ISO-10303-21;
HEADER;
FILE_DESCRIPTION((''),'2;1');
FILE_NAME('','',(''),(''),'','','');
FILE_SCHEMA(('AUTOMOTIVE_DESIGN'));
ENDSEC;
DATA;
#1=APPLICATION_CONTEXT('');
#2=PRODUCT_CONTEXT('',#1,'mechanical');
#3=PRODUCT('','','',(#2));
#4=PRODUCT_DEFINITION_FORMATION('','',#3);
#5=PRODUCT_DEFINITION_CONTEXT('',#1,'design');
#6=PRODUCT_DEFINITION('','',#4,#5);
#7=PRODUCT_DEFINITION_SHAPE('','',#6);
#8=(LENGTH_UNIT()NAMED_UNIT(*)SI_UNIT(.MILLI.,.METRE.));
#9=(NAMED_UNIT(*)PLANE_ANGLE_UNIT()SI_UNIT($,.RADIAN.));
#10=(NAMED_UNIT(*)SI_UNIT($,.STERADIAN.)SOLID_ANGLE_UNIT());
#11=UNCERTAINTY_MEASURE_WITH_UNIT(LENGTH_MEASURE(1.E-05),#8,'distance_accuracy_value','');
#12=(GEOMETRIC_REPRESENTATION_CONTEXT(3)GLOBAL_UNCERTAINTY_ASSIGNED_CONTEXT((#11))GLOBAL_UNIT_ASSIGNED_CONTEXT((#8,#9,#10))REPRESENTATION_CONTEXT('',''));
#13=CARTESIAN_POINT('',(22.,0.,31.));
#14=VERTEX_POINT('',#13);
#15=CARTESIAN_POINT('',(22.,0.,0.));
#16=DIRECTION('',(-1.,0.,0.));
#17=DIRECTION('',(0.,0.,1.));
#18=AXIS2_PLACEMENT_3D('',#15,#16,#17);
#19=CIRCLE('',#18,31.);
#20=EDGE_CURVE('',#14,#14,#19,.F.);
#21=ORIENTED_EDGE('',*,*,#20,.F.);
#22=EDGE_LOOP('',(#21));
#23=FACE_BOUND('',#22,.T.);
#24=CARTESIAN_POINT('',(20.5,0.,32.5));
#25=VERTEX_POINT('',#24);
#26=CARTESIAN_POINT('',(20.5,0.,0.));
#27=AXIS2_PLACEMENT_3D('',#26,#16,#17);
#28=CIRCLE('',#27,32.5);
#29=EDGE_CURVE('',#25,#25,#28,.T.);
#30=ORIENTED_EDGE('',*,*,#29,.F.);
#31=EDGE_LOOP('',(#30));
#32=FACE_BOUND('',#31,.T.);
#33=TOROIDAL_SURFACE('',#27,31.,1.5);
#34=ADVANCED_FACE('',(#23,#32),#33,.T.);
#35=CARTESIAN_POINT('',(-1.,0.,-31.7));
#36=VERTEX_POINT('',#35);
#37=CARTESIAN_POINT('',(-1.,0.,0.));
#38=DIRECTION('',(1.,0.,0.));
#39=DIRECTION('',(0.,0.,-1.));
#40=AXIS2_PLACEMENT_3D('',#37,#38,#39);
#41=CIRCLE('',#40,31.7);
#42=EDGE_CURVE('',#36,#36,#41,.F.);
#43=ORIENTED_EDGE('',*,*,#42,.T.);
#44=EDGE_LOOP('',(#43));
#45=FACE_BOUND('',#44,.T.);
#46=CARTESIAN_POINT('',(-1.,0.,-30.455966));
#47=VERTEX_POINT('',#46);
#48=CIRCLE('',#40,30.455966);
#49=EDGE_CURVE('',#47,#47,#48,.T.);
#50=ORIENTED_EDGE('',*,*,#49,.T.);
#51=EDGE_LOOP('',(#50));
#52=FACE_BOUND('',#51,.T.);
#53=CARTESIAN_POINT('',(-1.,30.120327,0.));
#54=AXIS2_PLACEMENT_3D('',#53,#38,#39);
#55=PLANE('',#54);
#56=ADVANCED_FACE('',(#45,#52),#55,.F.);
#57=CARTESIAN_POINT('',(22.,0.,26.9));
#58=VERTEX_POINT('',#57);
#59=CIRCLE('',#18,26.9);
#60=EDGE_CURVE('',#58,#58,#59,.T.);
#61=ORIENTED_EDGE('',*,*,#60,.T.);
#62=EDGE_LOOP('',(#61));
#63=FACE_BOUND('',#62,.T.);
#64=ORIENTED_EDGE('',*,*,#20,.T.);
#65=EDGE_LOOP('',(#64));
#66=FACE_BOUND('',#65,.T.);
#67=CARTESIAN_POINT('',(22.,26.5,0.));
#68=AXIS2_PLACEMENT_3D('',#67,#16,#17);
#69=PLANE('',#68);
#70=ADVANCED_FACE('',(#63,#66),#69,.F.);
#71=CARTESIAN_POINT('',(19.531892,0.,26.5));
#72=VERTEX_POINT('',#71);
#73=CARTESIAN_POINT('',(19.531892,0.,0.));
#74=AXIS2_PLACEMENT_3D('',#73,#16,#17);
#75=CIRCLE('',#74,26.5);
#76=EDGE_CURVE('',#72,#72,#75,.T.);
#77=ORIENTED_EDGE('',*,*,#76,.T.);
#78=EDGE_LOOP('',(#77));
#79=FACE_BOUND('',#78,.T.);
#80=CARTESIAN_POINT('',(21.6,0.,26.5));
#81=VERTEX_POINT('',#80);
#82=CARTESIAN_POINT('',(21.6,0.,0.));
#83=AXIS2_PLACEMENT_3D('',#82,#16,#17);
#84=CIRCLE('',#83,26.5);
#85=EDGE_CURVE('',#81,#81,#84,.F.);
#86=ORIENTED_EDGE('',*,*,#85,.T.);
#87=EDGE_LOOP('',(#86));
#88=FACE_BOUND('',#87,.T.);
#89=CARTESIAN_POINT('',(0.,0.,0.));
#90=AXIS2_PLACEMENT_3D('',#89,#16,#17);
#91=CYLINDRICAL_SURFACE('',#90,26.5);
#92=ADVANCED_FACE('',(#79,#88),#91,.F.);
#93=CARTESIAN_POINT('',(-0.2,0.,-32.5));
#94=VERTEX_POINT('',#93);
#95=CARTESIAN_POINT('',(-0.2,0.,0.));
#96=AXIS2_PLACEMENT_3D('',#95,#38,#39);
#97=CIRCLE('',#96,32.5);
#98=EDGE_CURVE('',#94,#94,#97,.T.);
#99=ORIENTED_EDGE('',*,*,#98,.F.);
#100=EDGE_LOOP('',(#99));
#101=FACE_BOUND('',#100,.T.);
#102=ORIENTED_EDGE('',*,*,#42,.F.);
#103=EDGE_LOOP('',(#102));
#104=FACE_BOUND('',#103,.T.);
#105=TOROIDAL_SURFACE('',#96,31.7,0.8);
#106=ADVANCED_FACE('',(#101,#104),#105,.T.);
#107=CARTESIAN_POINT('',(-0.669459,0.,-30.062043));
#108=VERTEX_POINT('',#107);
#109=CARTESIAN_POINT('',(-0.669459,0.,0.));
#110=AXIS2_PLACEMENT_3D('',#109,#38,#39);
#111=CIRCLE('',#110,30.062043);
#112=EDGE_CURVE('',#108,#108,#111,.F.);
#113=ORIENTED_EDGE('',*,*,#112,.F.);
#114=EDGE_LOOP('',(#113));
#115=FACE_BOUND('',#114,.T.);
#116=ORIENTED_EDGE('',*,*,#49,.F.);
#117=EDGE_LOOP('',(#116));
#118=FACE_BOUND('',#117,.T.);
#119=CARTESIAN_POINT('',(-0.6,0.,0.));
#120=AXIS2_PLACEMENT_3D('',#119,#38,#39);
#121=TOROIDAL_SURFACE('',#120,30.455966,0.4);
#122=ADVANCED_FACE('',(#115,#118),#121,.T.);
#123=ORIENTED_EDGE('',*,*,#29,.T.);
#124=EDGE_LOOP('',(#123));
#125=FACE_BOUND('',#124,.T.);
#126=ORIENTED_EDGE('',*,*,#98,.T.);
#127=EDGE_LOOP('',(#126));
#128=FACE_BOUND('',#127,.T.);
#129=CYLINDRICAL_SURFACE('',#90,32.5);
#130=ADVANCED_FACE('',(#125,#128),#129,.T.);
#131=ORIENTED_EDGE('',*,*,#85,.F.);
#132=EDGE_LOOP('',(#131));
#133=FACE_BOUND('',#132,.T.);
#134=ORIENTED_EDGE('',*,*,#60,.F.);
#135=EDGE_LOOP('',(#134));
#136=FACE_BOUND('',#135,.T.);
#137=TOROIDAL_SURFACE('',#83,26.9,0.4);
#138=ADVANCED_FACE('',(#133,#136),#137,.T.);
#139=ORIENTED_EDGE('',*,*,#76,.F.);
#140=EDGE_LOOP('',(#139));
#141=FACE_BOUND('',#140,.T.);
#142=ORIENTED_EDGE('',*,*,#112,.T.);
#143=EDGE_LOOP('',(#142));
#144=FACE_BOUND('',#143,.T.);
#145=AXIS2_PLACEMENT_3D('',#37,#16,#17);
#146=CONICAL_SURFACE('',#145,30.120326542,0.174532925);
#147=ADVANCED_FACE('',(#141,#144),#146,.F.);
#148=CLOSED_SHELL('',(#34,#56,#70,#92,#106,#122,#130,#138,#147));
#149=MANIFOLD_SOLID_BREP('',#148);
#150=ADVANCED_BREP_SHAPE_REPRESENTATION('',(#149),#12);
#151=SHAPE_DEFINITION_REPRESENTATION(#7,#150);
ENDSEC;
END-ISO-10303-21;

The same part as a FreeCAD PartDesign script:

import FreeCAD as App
import Part
import Sketcher
Q = App.Units.Quantity


def edges_at(feature, points):
    """Names of the edges that pass closest to the given points."""
    edges = feature.Shape.Edges
    near = lambda p: min(range(len(edges)), key=lambda i: edges[i].distToShape(Part.Vertex(*p))[0])
    return sorted({f"Edge{near(p) + 1}" for p in points})

doc = App.newDocument("Part")
body = doc.addObject("PartDesign::Body", "Body")

sketch1 = body.newObject("Sketcher::SketchObject", "Sketch")
sketch1.AttachmentSupport = (doc.getObject("XY_Plane"), [""])
sketch1.MapMode = "FlatFace"
sketch1.addGeometry([
    Part.LineSegment(App.Vector(22, 26.5, 0), App.Vector(22, 32.5, 0)),
    Part.LineSegment(App.Vector(22, 32.5, 0), App.Vector(-1, 32.5, 0)),
    Part.LineSegment(App.Vector(-1, 32.5, 0), App.Vector(-1, 30.1, 0)),
    Part.LineSegment(App.Vector(-1, 30.1, 0), App.Vector(19.5, 26.5, 0)),
    Part.LineSegment(App.Vector(19.5, 26.5, 0), App.Vector(22, 26.5, 0)),
], False)
sketch1.addConstraint([
    Sketcher.Constraint("Coincident", 0, 2, 1, 1),
    Sketcher.Constraint("Coincident", 1, 2, 2, 1),
    Sketcher.Constraint("Coincident", 2, 2, 3, 1),
    Sketcher.Constraint("Coincident", 3, 2, 4, 1),
    Sketcher.Constraint("Coincident", 4, 2, 0, 1),
    Sketcher.Constraint("Vertical", 0),
    Sketcher.Constraint("Horizontal", 1),
    Sketcher.Constraint("Vertical", 2),
    Sketcher.Constraint("Horizontal", 4),
    Sketcher.Constraint("DistanceX", 1, 2, 1, 1, Q("23 mm")),
    Sketcher.Constraint("DistanceY", 0, 1, 0, 2, Q("6 mm")),
    Sketcher.Constraint("Angle", 3, Q("-10 deg")),
    Sketcher.Constraint("DistanceX", -1, 1, 0, 2, Q("22 mm")),
    Sketcher.Constraint("DistanceY", -1, 1, 0, 2, Q("32.5 mm")),
    Sketcher.Constraint("Distance", 3, Q("20.84863 mm")),
])
revolution = body.newObject("PartDesign::Revolution", "Revolution")
revolution.Profile = sketch1
revolution.ReferenceAxis = (sketch1, ["H_Axis"])
revolution.Angle = 360
doc.recompute()

fillet = body.newObject("PartDesign::Fillet", "Fillet")
fillet.Base = (revolution, edges_at(revolution, [(22, -32.5, 0)]))
fillet.Radius = 1.5
doc.recompute()

fillet2 = body.newObject("PartDesign::Fillet", "Fillet001")
fillet2.Base = (fillet, edges_at(fillet, [(-1, -32.5, 0)]))
fillet2.Radius = 0.8
doc.recompute()

fillet3 = body.newObject("PartDesign::Fillet", "Fillet002")
fillet3.Base = (fillet2, edges_at(fillet2, [(22, -26.5, 0), (-1, -30.12, 0)]))
fillet3.Radius = 0.4

doc.recompute()
